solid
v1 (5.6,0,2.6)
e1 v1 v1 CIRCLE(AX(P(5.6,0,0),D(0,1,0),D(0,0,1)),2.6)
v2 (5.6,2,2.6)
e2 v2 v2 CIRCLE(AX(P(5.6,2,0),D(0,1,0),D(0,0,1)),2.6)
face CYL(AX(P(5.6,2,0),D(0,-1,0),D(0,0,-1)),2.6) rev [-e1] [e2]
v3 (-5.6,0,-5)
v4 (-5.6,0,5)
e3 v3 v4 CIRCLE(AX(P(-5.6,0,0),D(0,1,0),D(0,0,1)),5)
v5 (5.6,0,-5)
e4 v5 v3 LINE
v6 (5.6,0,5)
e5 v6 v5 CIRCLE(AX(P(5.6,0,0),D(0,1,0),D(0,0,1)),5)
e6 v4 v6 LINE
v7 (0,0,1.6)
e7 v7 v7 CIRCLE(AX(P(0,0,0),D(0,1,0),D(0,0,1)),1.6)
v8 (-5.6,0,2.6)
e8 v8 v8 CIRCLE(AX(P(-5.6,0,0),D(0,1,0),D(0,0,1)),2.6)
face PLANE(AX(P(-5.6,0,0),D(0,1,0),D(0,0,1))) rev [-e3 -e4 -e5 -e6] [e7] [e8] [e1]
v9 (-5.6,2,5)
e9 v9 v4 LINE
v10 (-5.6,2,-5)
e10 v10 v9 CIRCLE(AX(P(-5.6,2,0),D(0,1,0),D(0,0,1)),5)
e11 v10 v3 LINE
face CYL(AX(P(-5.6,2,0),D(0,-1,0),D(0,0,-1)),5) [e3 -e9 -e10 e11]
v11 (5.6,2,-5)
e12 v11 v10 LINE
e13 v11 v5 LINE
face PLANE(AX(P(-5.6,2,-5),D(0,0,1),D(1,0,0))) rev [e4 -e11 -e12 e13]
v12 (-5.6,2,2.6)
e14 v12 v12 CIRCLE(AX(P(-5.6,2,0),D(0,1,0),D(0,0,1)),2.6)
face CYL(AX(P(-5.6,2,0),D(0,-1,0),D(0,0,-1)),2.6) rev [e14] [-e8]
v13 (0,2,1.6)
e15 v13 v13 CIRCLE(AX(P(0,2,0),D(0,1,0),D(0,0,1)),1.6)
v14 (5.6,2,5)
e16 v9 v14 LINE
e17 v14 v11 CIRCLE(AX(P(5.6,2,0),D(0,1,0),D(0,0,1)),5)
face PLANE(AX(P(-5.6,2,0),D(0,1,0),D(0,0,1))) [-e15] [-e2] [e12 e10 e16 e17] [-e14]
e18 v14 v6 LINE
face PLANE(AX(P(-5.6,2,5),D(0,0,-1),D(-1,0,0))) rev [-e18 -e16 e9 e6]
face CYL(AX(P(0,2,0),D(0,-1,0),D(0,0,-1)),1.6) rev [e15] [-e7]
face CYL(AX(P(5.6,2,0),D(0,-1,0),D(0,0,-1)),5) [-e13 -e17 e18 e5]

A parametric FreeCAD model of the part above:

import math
import FreeCAD as App
import Part
import Sketcher
Q = App.Units.Quantity

doc = App.newDocument("Part")
body = doc.addObject("PartDesign::Body", "Body")

# Sketch on XZ plane
sketch1 = body.newObject("Sketcher::SketchObject", "Sketch")
sketch1.AttachmentSupport = (doc.getObject("XZ_Plane"), [""])
sketch1.MapMode = "FlatFace"
sketch1.addGeometry([
    Part.LineSegment(App.Vector(5.6, -5, 0), App.Vector(-5.6, -5, 0)),  # 0
    Part.ArcOfCircle(Part.Circle(App.Vector(-5.6, 0, 0), App.Vector(0, 0, 1), 5), math.radians(90), math.radians(270)),  # 1
    Part.LineSegment(App.Vector(-5.6, 5, 0), App.Vector(5.6, 5, 0)),  # 2
    Part.ArcOfCircle(Part.Circle(App.Vector(5.6, 0, 0), App.Vector(0, 0, 1), 5), math.radians(-90), math.radians(90)),  # 3
    Part.Circle(App.Vector(5.6, 0, 0), App.Vector(0, 0, 1), 2.6),  # 4
    Part.Circle(App.Vector(0, 0, 0), App.Vector(0, 0, 1), 1.6),  # 5
    Part.Circle(App.Vector(-5.6, 0, 0), App.Vector(0, 0, 1), 2.6),  # 6
], False)
sketch1.addConstraint([
    Sketcher.Constraint("Tangent", 0, 2, 1, 2),
    Sketcher.Constraint("Tangent", 1, 1, 2, 1),
    Sketcher.Constraint("Tangent", 2, 2, 3, 2),
    Sketcher.Constraint("Tangent", 3, 1, 0, 1),
    Sketcher.Constraint("Horizontal", 0),
    Sketcher.Constraint("Horizontal", 2),
    Sketcher.Constraint("Coincident", 5, 3, -1, 1),
    Sketcher.Constraint("Coincident", 4, 3, 3, 3),
    Sketcher.Constraint("Coincident", 6, 3, 1, 3),
    Sketcher.Constraint("Equal", 4, 6),
    Sketcher.Constraint("Symmetric", 1, 3, 3, 3, -1, 1),
    Sketcher.Constraint("Radius", 1, Q("5 mm")),
    Sketcher.Constraint("Diameter", 4, Q("5.2 mm")),
    Sketcher.Constraint("Diameter", 5, Q("3.2 mm")),
    Sketcher.Constraint("DistanceX", 0, 2, 0, 1, Q("11.2 mm")),
])
pad1 = body.newObject("PartDesign::Pad", "Pad")
pad1.Profile = sketch1
pad1.Length = 2
pad1.Reversed = True

doc.recompute()
